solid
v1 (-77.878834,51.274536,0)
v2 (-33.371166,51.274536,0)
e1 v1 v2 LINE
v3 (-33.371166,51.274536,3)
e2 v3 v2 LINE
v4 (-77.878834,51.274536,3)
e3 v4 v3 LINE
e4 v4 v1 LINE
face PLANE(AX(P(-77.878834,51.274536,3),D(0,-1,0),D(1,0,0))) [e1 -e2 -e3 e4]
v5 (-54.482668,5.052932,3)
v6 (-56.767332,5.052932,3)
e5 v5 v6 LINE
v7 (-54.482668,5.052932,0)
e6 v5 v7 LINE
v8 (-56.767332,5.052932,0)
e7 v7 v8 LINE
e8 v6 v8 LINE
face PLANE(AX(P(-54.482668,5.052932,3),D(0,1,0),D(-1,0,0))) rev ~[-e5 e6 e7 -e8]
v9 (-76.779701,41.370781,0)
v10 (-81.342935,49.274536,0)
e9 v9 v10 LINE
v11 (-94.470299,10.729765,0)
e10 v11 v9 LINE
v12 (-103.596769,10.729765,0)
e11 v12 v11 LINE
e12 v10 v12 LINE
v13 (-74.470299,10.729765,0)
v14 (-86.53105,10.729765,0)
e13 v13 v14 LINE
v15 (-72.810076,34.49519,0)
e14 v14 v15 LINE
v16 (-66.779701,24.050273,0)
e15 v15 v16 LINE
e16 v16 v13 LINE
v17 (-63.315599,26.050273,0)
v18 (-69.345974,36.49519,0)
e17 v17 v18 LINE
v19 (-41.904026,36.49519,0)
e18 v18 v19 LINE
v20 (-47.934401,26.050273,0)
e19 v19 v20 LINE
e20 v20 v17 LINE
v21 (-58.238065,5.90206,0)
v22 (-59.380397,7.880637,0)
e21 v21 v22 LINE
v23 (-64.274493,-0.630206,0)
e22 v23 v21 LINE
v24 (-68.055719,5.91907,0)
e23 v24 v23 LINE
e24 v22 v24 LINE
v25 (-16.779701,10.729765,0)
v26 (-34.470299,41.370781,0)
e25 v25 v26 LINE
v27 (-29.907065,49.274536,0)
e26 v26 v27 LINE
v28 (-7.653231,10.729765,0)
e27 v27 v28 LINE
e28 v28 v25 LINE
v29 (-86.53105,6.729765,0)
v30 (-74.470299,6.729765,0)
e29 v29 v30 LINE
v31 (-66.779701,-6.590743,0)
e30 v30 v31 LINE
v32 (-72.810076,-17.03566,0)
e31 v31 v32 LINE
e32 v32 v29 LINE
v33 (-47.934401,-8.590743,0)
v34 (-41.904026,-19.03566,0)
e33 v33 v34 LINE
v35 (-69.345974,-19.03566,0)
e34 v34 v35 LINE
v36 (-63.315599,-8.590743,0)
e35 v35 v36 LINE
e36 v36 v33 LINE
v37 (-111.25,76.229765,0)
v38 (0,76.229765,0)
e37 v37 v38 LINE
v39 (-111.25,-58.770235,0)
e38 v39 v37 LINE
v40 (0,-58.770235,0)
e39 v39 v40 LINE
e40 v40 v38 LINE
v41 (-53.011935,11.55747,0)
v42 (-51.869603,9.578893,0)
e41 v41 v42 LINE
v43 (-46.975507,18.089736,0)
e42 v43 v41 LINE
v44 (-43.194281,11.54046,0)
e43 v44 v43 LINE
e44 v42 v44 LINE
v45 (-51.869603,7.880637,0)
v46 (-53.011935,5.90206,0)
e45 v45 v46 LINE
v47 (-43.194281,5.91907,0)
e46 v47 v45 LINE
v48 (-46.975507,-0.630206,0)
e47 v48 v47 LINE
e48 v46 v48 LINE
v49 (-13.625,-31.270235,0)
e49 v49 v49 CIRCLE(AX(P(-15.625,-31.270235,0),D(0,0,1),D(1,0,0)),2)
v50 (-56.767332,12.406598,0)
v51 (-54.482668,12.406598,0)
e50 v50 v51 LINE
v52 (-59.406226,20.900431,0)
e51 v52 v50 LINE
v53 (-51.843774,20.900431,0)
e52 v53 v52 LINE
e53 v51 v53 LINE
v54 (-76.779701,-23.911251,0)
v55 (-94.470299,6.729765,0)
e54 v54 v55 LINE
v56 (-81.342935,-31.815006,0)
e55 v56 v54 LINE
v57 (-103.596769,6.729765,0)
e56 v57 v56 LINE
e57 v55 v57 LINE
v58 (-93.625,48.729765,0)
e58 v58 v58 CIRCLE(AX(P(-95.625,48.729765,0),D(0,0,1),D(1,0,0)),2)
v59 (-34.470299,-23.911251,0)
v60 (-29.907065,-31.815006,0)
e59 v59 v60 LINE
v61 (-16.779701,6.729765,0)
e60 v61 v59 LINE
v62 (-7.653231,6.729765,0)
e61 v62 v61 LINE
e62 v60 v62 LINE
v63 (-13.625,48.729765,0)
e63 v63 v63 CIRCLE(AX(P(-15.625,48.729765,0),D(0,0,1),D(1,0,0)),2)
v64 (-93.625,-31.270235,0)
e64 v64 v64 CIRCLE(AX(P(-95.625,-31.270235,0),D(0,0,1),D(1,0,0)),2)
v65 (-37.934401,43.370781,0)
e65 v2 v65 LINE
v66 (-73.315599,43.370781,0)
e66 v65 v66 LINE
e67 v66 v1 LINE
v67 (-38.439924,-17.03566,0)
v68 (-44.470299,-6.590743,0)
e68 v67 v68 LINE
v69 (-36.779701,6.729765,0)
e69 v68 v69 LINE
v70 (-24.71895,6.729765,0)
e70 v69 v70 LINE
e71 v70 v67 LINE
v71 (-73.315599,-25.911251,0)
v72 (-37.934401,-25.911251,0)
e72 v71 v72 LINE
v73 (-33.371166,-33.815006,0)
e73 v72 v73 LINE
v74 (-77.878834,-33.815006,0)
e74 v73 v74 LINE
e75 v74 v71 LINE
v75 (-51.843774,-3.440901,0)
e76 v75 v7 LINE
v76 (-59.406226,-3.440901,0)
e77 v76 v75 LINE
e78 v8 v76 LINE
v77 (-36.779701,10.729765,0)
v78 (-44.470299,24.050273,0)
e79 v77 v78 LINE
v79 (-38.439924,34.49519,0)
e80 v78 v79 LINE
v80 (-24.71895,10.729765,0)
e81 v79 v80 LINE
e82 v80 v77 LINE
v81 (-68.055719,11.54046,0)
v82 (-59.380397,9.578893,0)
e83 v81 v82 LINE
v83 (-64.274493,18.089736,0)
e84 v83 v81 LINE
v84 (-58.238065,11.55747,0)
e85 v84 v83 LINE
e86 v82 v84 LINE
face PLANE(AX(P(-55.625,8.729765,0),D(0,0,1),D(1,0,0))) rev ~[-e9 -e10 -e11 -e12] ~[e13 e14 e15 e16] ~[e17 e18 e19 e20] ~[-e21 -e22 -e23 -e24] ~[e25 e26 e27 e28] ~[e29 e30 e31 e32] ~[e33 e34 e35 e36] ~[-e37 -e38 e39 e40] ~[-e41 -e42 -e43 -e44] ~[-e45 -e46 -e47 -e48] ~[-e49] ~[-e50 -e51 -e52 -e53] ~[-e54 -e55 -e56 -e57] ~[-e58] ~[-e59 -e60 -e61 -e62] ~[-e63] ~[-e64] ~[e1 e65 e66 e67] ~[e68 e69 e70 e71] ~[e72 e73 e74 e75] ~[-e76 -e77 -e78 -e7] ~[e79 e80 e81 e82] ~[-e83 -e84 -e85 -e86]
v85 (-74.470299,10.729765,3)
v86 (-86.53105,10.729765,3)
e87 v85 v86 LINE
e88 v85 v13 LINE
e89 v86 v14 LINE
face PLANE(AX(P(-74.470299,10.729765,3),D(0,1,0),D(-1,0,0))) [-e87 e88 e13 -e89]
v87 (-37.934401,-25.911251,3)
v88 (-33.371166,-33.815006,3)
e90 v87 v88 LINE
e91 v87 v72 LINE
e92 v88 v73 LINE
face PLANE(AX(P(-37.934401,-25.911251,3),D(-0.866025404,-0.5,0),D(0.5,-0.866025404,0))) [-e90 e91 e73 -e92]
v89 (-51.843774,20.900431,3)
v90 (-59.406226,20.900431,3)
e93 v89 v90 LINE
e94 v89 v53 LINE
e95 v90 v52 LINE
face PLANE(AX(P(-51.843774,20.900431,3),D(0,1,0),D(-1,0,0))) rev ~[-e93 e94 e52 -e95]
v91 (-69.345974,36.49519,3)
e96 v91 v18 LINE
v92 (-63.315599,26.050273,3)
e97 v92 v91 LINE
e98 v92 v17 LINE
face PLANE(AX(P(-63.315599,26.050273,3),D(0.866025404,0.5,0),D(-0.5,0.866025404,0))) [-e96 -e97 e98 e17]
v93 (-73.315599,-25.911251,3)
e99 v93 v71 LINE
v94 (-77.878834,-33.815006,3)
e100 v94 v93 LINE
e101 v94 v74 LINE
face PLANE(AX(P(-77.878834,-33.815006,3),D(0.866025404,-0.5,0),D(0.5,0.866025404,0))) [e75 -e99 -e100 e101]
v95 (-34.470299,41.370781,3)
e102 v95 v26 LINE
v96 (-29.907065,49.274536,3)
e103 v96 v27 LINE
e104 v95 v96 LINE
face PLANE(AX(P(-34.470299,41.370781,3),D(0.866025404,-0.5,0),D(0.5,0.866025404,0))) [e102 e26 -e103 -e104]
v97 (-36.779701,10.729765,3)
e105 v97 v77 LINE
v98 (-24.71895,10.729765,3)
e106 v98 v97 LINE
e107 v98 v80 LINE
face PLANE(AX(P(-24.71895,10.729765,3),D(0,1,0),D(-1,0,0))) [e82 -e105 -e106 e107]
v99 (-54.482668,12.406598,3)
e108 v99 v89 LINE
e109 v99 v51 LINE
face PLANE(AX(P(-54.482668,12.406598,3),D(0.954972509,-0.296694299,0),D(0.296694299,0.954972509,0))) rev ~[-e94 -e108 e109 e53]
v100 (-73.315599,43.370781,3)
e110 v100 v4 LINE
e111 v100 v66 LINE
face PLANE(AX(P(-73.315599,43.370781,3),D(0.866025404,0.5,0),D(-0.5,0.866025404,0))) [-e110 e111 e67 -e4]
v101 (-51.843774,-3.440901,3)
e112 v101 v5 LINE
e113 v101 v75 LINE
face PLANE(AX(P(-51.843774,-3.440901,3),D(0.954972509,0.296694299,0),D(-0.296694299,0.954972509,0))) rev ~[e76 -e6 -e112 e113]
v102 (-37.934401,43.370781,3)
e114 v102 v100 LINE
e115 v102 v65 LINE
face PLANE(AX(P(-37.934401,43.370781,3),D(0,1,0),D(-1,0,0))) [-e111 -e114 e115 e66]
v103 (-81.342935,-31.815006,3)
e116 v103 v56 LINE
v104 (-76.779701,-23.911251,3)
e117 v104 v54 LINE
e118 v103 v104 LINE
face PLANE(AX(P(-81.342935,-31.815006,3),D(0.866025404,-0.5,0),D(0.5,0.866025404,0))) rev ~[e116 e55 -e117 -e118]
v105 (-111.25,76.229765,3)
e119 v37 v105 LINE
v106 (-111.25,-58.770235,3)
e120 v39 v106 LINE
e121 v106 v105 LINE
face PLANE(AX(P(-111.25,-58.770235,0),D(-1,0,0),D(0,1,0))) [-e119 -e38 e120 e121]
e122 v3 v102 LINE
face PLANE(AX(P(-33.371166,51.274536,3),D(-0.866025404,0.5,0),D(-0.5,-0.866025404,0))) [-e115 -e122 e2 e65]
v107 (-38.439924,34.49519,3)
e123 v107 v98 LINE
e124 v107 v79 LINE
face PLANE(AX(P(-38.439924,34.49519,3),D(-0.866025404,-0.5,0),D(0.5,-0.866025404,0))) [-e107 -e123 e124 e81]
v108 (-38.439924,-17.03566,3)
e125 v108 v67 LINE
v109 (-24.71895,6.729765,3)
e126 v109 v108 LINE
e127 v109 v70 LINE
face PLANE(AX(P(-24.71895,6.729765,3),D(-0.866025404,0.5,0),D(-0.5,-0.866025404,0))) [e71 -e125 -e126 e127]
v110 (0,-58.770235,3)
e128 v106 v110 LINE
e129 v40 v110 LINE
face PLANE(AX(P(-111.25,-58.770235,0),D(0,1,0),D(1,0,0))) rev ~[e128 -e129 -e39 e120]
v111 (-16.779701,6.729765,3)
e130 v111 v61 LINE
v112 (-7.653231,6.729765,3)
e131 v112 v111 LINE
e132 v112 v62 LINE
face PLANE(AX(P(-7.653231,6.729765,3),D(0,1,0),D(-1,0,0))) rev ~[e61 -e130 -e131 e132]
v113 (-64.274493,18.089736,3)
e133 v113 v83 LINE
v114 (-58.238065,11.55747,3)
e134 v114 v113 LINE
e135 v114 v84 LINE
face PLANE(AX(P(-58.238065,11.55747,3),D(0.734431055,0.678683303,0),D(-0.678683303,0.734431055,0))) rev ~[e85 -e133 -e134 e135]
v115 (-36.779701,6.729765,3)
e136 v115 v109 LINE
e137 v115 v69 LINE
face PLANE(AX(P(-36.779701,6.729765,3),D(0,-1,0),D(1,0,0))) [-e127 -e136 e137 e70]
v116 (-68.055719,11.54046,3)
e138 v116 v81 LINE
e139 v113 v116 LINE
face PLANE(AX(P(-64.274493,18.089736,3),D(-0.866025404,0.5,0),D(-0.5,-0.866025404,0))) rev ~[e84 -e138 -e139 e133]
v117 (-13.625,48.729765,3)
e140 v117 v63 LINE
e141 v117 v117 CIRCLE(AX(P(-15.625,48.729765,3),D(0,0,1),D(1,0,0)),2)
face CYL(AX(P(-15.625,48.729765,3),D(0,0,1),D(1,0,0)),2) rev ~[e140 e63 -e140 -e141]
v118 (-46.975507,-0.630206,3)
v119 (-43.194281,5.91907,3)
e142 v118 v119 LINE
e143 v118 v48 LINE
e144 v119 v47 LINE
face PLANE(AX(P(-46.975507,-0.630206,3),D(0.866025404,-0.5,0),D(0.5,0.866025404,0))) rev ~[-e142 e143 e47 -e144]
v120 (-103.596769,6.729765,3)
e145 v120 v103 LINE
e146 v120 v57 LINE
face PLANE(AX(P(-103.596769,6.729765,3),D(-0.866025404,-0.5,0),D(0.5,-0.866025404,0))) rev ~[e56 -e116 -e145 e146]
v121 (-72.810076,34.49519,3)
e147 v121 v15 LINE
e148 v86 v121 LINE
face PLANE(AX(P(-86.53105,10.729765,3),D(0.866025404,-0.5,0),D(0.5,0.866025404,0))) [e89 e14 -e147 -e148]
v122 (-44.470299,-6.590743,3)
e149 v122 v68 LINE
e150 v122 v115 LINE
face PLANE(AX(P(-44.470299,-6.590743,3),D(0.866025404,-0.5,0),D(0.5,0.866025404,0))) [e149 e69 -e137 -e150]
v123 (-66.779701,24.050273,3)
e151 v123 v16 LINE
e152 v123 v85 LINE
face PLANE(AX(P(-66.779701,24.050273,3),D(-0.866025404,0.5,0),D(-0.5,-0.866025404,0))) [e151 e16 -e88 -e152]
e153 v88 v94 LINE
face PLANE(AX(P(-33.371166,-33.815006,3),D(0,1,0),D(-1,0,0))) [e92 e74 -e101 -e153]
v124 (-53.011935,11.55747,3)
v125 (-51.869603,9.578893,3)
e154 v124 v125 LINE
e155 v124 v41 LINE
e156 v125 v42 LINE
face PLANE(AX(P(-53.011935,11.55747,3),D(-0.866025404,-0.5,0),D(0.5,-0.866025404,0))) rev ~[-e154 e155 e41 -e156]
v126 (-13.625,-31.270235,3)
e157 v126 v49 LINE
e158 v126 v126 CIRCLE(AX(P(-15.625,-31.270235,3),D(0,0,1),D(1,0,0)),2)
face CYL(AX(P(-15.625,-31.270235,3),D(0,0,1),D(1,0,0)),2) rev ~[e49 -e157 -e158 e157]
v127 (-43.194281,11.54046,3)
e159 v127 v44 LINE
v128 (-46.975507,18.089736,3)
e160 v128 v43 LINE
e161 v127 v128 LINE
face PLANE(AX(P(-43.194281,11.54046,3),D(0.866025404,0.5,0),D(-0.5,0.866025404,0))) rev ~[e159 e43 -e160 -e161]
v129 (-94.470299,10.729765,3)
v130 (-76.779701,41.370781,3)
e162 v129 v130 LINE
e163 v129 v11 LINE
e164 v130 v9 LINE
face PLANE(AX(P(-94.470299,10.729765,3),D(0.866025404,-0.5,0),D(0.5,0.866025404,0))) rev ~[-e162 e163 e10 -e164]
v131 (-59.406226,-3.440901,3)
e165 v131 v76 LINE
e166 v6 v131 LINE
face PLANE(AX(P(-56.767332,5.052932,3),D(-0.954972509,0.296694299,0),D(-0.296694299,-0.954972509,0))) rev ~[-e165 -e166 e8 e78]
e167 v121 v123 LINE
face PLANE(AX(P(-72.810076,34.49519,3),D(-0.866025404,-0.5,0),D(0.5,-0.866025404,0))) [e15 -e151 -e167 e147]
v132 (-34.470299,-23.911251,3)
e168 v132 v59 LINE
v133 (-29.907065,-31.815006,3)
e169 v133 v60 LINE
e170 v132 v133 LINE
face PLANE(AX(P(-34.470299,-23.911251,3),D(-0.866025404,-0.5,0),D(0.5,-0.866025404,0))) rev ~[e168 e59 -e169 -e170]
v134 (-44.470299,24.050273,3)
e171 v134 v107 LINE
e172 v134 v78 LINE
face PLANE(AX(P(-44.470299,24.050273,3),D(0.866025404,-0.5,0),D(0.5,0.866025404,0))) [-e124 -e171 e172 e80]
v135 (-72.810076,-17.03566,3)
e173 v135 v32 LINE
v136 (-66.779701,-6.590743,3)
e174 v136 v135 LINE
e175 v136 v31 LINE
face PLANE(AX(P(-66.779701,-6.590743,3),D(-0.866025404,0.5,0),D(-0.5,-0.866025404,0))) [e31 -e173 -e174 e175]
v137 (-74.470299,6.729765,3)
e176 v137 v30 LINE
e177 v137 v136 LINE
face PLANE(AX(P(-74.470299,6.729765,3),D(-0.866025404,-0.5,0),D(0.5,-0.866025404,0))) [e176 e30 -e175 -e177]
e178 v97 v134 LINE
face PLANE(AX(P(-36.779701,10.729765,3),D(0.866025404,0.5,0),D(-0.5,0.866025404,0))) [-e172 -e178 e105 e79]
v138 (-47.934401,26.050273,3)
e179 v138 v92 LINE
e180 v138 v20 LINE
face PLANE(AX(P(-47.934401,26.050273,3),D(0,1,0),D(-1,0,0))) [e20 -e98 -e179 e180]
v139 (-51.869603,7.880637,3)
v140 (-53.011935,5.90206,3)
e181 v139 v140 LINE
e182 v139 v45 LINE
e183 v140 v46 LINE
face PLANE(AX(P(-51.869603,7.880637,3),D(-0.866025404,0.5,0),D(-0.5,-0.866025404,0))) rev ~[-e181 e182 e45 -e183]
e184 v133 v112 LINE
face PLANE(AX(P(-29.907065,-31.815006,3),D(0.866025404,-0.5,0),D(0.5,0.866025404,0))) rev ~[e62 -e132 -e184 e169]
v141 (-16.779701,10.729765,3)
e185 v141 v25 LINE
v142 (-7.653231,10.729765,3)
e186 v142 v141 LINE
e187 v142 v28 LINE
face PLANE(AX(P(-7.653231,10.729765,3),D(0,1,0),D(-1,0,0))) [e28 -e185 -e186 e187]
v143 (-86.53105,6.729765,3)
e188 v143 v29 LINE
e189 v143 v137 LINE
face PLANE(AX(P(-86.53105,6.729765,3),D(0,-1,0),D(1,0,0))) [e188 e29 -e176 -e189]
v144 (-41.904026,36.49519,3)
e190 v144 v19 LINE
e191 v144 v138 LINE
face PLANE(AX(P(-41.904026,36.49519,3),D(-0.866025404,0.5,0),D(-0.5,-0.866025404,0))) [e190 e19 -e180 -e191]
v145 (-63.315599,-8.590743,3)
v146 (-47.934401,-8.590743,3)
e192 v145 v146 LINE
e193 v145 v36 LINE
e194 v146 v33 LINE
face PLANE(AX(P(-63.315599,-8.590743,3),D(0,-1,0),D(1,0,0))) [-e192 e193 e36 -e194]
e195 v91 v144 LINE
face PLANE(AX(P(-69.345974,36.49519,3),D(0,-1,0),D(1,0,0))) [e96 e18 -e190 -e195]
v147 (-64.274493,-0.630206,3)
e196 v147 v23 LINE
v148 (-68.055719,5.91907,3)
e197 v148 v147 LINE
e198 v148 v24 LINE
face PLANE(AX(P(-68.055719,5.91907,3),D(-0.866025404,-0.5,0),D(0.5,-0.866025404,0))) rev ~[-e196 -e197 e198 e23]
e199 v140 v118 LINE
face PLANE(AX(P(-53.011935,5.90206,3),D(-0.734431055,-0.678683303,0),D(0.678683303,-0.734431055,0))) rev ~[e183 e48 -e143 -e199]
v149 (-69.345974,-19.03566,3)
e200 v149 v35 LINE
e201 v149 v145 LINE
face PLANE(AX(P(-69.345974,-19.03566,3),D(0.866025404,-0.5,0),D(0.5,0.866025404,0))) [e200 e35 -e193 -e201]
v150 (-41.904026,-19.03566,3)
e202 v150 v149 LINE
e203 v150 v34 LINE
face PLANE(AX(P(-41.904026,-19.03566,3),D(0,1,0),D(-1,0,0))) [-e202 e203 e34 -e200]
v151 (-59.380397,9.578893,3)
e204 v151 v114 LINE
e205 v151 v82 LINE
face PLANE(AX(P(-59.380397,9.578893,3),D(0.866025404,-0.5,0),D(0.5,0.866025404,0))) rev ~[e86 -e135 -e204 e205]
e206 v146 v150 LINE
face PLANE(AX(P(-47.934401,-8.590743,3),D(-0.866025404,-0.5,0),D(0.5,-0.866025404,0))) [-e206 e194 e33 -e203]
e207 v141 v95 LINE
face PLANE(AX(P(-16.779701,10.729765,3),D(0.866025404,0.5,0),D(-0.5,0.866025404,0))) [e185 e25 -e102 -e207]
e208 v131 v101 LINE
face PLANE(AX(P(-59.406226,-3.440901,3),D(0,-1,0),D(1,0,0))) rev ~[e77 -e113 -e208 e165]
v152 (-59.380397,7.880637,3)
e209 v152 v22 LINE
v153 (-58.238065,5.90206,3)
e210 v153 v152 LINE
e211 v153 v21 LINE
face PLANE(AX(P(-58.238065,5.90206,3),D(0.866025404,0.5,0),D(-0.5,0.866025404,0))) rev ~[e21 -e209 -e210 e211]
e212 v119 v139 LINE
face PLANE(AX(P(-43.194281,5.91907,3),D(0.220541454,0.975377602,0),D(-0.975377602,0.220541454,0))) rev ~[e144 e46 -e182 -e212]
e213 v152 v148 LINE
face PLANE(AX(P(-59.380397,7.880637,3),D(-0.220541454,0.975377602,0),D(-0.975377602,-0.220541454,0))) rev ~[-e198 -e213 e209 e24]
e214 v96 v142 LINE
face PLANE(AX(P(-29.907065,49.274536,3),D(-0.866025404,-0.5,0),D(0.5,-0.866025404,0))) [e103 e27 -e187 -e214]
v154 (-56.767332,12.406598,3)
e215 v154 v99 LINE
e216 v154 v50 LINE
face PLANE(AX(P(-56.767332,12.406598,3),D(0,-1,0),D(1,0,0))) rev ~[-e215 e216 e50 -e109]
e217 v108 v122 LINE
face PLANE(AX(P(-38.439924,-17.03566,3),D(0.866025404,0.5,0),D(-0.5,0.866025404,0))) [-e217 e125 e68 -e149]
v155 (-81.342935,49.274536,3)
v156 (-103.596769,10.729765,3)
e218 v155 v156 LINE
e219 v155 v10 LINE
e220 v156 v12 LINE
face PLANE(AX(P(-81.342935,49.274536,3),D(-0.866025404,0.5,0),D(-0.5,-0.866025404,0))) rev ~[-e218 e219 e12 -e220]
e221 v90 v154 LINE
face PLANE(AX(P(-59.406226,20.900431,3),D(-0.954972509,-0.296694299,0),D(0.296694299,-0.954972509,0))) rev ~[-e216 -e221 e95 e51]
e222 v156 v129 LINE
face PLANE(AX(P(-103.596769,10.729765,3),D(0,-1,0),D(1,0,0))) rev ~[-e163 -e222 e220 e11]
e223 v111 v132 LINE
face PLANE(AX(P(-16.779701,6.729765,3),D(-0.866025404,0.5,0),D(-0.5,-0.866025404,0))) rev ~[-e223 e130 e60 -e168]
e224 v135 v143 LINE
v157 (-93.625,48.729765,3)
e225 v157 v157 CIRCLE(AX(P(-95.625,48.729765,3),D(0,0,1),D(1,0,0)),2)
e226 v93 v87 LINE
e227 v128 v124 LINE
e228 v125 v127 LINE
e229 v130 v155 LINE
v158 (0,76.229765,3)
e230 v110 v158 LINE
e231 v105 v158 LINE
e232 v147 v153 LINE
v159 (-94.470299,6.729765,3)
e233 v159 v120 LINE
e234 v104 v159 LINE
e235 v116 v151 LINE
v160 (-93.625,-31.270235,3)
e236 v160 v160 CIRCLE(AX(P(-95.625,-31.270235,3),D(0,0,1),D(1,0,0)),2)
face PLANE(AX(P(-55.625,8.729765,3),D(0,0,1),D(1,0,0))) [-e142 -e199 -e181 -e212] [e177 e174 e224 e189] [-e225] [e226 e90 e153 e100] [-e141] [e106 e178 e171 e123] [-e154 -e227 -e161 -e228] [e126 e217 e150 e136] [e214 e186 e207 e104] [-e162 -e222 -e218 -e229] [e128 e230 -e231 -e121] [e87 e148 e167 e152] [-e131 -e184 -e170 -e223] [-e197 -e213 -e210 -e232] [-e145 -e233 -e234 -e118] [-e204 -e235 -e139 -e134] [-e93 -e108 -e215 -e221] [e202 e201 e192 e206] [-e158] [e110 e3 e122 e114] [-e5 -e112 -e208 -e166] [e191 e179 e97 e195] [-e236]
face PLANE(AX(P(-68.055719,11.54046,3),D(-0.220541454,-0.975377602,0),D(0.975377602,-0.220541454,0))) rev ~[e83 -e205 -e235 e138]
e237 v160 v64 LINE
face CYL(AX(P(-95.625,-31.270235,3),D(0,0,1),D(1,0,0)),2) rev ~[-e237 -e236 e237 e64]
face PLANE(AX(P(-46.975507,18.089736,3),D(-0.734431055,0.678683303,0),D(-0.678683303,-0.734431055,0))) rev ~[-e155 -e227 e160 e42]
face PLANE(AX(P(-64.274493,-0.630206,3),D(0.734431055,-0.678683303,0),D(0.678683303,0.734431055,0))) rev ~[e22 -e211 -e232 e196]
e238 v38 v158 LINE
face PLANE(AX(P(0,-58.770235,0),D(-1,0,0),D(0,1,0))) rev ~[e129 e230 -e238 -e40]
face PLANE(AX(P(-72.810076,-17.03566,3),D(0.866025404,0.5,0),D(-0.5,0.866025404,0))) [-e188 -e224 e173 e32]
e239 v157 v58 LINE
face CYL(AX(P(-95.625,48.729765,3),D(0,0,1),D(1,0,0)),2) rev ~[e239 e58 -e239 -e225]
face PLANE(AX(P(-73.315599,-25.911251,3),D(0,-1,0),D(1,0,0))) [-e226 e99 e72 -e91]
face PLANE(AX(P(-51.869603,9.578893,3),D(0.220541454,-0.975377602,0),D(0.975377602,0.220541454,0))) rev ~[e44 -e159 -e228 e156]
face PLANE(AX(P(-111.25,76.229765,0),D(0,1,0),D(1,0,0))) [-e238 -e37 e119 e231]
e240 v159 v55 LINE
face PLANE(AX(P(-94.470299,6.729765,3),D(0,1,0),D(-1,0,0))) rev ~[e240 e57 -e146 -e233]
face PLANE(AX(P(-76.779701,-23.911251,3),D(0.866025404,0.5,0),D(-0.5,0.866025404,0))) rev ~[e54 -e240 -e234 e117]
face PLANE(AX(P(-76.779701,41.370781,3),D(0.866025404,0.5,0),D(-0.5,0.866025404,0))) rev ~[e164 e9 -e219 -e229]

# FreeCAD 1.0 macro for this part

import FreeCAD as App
import Part
import Sketcher
Q = App.Units.Quantity

doc = App.newDocument("Part")
body = doc.addObject("PartDesign::Body", "Body")

# Sketch on XY plane
sketch1 = doc.addObject("Sketcher::SketchObject", "Sketch")
body.addObject(sketch1)
sketch1.AttachmentSupport = (doc.XY_Plane, [""])
sketch1.MapMode = "FlatFace"
sketch1.addGeometry(Part.LineSegment(App.Vector(-111, 76, 0), App.Vector(-111, -59, 0)), False)
sketch1.addGeometry(Part.LineSegment(App.Vector(-111, -59, 0), App.Vector(0, -59, 0)), False)
sketch1.addGeometry(Part.LineSegment(App.Vector(0, -59, 0), App.Vector(0, 76, 0)), False)
sketch1.addGeometry(Part.LineSegment(App.Vector(0, 76, 0), App.Vector(-111, 76, 0)), False)
sketch1.addConstraint(Sketcher.Constraint("Coincident", 0, 2, 1, 1))
sketch1.addConstraint(Sketcher.Constraint("Coincident", 1, 2, 2, 1))
sketch1.addConstraint(Sketcher.Constraint("Coincident", 2, 2, 3, 1))
sketch1.addConstraint(Sketcher.Constraint("Coincident", 3, 2, 0, 1))
sketch1.addConstraint(Sketcher.Constraint("Vertical", 0))
sketch1.addConstraint(Sketcher.Constraint("Horizontal", 1))
sketch1.addConstraint(Sketcher.Constraint("Vertical", 2))
sketch1.addConstraint(Sketcher.Constraint("Horizontal", 3))
sketch1.addConstraint(Sketcher.Constraint("PointOnObject", 1, 2, -2))
sketch1.addConstraint(Sketcher.Constraint("DistanceY", 0, 2, 0, 1, Q("135 mm")))
sketch1.addConstraint(Sketcher.Constraint("DistanceX", 1, 1, 1, 2, Q("111.25 mm")))
sketch1.addConstraint(Sketcher.Constraint("DistanceY", 0, 2, -1, 1, Q("58.770235 mm")))
pad1 = doc.addObject("PartDesign::Pad", "Pad")
body.addObject(pad1)
pad1.Profile = sketch1
pad1.Length = 3

# Sketch on XY plane
sketch2 = doc.addObject("Sketcher::SketchObject", "Sketch001")
body.addObject(sketch2)
sketch2.AttachmentSupport = (doc.XY_Plane, [""])
sketch2.MapMode = "FlatFace"
sketch2.AttachmentOffset = App.Placement(App.Vector(0, 0, 3), App.Rotation())
sketch2.addGeometry(Part.LineSegment(App.Vector(-81.3, 49.3, 0), App.Vector(-103.6, 10.7, 0)), False)
sketch2.addGeometry(Part.LineSegment(App.Vector(-103.6, 10.7, 0), App.Vector(-94.5, 10.7, 0)), False)
sketch2.addGeometry(Part.LineSegment(App.Vector(-94.5, 10.7, 0), App.Vector(-76.8, 41.4, 0)), False)
sketch2.addGeometry(Part.LineSegment(App.Vector(-76.8, 41.4, 0), App.Vector(-81.3, 49.3, 0)), False)
sketch2.addGeometry(Part.LineSegment(App.Vector(-73.3, 43.4, 0), App.Vector(-37.9, 43.4, 0)), False)
sketch2.addGeometry(Part.LineSegment(App.Vector(-37.9, 43.4, 0), App.Vector(-33.4, 51.3, 0)), False)
sketch2.addGeometry(Part.LineSegment(App.Vector(-33.4, 51.3, 0), App.Vector(-77.9, 51.3, 0)), False)
sketch2.addGeometry(Part.LineSegment(App.Vector(-77.9, 51.3, 0), App.Vector(-73.3, 43.4, 0)), False)
sketch2.addGeometry(Part.LineSegment(App.Vector(-34.5, 41.4, 0), App.Vector(-16.8, 10.7, 0)), False)
sketch2.addGeometry(Part.LineSegment(App.Vector(-16.8, 10.7, 0), App.Vector(-7.7, 10.7, 0)), False)
sketch2.addGeometry(Part.LineSegment(App.Vector(-7.7, 10.7, 0), App.Vector(-29.9, 49.3, 0)), False)
sketch2.addGeometry(Part.LineSegment(App.Vector(-29.9, 49.3, 0), App.Vector(-34.5, 41.4, 0)), False)
sketch2.addGeometry(Part.LineSegment(App.Vector(-29.9, -31.8, 0), App.Vector(-7.7, 6.7, 0)), False)
sketch2.addGeometry(Part.LineSegment(App.Vector(-7.7, 6.7, 0), App.Vector(-16.8, 6.7, 0)), False)
sketch2.addGeometry(Part.LineSegment(App.Vector(-16.8, 6.7, 0), App.Vector(-34.5, -23.9, 0)), False)
sketch2.addGeometry(Part.LineSegment(App.Vector(-34.5, -23.9, 0), App.Vector(-29.9, -31.8, 0)), False)
sketch2.addGeometry(Part.LineSegment(App.Vector(-73.3, -25.9, 0), App.Vector(-77.9, -33.8, 0)), False)
sketch2.addGeometry(Part.LineSegment(App.Vector(-77.9, -33.8, 0), App.Vector(-33.4, -33.8, 0)), False)
sketch2.addGeometry(Part.LineSegment(App.Vector(-33.4, -33.8, 0), App.Vector(-37.9, -25.9, 0)), False)
sketch2.addGeometry(Part.LineSegment(App.Vector(-37.9, -25.9, 0), App.Vector(-73.3, -25.9, 0)), False)
sketch2.addGeometry(Part.LineSegment(App.Vector(-103.6, 6.7, 0), App.Vector(-81.3, -31.8, 0)), False)
sketch2.addGeometry(Part.LineSegment(App.Vector(-81.3, -31.8, 0), App.Vector(-76.8, -23.9, 0)), False)
sketch2.addGeometry(Part.LineSegment(App.Vector(-76.8, -23.9, 0), App.Vector(-94.5, 6.7, 0)), False)
sketch2.addGeometry(Part.LineSegment(App.Vector(-94.5, 6.7, 0), App.Vector(-103.6, 6.7, 0)), False)
sketch2.addGeometry(Part.LineSegment(App.Vector(-74.5, 10.7, 0), App.Vector(-66.8, 24.1, 0)), False)
sketch2.addGeometry(Part.LineSegment(App.Vector(-66.8, 24.1, 0), App.Vector(-72.8, 34.5, 0)), False)
sketch2.addGeometry(Part.LineSegment(App.Vector(-72.8, 34.5, 0), App.Vector(-86.5, 10.7, 0)), False)
sketch2.addGeometry(Part.LineSegment(App.Vector(-86.5, 10.7, 0), App.Vector(-74.5, 10.7, 0)), False)
sketch2.addGeometry(Part.LineSegment(App.Vector(-66.8, -6.6, 0), App.Vector(-74.5, 6.7, 0)), False)
sketch2.addGeometry(Part.LineSegment(App.Vector(-74.5, 6.7, 0), App.Vector(-86.5, 6.7, 0)), False)
sketch2.addGeometry(Part.LineSegment(App.Vector(-86.5, 6.7, 0), App.Vector(-72.8, -17, 0)), False)
sketch2.addGeometry(Part.LineSegment(App.Vector(-72.8, -17, 0), App.Vector(-66.8, -6.6, 0)), False)
sketch2.addGeometry(Part.LineSegment(App.Vector(-41.9, -19, 0), App.Vector(-47.9, -8.6, 0)), False)
sketch2.addGeometry(Part.LineSegment(App.Vector(-47.9, -8.6, 0), App.Vector(-63.3, -8.6, 0)), False)
sketch2.addGeometry(Part.LineSegment(App.Vector(-63.3, -8.6, 0), App.Vector(-69.3, -19, 0)), False)
sketch2.addGeometry(Part.LineSegment(App.Vector(-69.3, -19, 0), App.Vector(-41.9, -19, 0)), False)
sketch2.addGeometry(Part.LineSegment(App.Vector(-44.5, -6.6, 0), App.Vector(-38.4, -17, 0)), False)
sketch2.addGeometry(Part.LineSegment(App.Vector(-38.4, -17, 0), App.Vector(-24.7, 6.7, 0)), False)
sketch2.addGeometry(Part.LineSegment(App.Vector(-24.7, 6.7, 0), App.Vector(-36.8, 6.7, 0)), False)
sketch2.addGeometry(Part.LineSegment(App.Vector(-36.8, 6.7, 0), App.Vector(-44.5, -6.6, 0)), False)
sketch2.addGeometry(Part.LineSegment(App.Vector(-44.5, 24.1, 0), App.Vector(-36.8, 10.7, 0)), False)
sketch2.addGeometry(Part.LineSegment(App.Vector(-36.8, 10.7, 0), App.Vector(-24.7, 10.7, 0)), False)
sketch2.addGeometry(Part.LineSegment(App.Vector(-24.7, 10.7, 0), App.Vector(-38.4, 34.5, 0)), False)
sketch2.addGeometry(Part.LineSegment(App.Vector(-38.4, 34.5, 0), App.Vector(-44.5, 24.1, 0)), False)
sketch2.addGeometry(Part.LineSegment(App.Vector(-63.3, 26.1, 0), App.Vector(-47.9, 26.1, 0)), False)
sketch2.addGeometry(Part.LineSegment(App.Vector(-47.9, 26.1, 0), App.Vector(-41.9, 36.5, 0)), False)
sketch2.addGeometry(Part.LineSegment(App.Vector(-41.9, 36.5, 0), App.Vector(-69.3, 36.5, 0)), False)
sketch2.addGeometry(Part.LineSegment(App.Vector(-69.3, 36.5, 0), App.Vector(-63.3, 26.1, 0)), False)
sketch2.addGeometry(Part.LineSegment(App.Vector(-54.5, 12.4, 0), App.Vector(-51.8, 20.9, 0)), False)
sketch2.addGeometry(Part.LineSegment(App.Vector(-51.8, 20.9, 0), App.Vector(-59.4, 20.9, 0)), False)
sketch2.addGeometry(Part.LineSegment(App.Vector(-59.4, 20.9, 0), App.Vector(-56.8, 12.4, 0)), False)
sketch2.addGeometry(Part.LineSegment(App.Vector(-56.8, 12.4, 0), App.Vector(-54.5, 12.4, 0)), False)
sketch2.addGeometry(Part.LineSegment(App.Vector(-58.2, 11.6, 0), App.Vector(-64.3, 18.1, 0)), False)
sketch2.addGeometry(Part.LineSegment(App.Vector(-64.3, 18.1, 0), App.Vector(-68.1, 11.5, 0)), False)
sketch2.addGeometry(Part.LineSegment(App.Vector(-68.1, 11.5, 0), App.Vector(-59.4, 9.6, 0)), False)
sketch2.addGeometry(Part.LineSegment(App.Vector(-59.4, 9.6, 0), App.Vector(-58.2, 11.6, 0)), False)
sketch2.addGeometry(Part.LineSegment(App.Vector(-59.4, 7.9, 0), App.Vector(-68.1, 5.9, 0)), False)
sketch2.addGeometry(Part.LineSegment(App.Vector(-68.1, 5.9, 0), App.Vector(-64.3, -0.6, 0)), False)
sketch2.addGeometry(Part.LineSegment(App.Vector(-64.3, -0.6, 0), App.Vector(-58.2, 5.9, 0)), False)
sketch2.addGeometry(Part.LineSegment(App.Vector(-58.2, 5.9, 0), App.Vector(-59.4, 7.9, 0)), False)
sketch2.addGeometry(Part.LineSegment(App.Vector(-56.8, 5.1, 0), App.Vector(-59.4, -3.4, 0)), False)
sketch2.addGeometry(Part.LineSegment(App.Vector(-59.4, -3.4, 0), App.Vector(-51.8, -3.4, 0)), False)
sketch2.addGeometry(Part.LineSegment(App.Vector(-51.8, -3.4, 0), App.Vector(-54.5, 5.1, 0)), False)
sketch2.addGeometry(Part.LineSegment(App.Vector(-54.5, 5.1, 0), App.Vector(-56.8, 5.1, 0)), False)
sketch2.addGeometry(Part.LineSegment(App.Vector(-53, 5.9, 0), App.Vector(-47, -0.6, 0)), False)
sketch2.addGeometry(Part.LineSegment(App.Vector(-47, -0.6, 0), App.Vector(-43.2, 5.9, 0)), False)
sketch2.addGeometry(Part.LineSegment(App.Vector(-43.2, 5.9, 0), App.Vector(-51.9, 7.9, 0)), False)
sketch2.addGeometry(Part.LineSegment(App.Vector(-51.9, 7.9, 0), App.Vector(-53, 5.9, 0)), False)
sketch2.addGeometry(Part.LineSegment(App.Vector(-51.9, 9.6, 0), App.Vector(-43.2, 11.5, 0)), False)
sketch2.addGeometry(Part.LineSegment(App.Vector(-43.2, 11.5, 0), App.Vector(-47, 18.1, 0)), False)
sketch2.addGeometry(Part.LineSegment(App.Vector(-47, 18.1, 0), App.Vector(-53, 11.6, 0)), False)
sketch2.addGeometry(Part.LineSegment(App.Vector(-53, 11.6, 0), App.Vector(-51.9, 9.6, 0)), False)
sketch2.addGeometry(Part.Circle(App.Vector(-15.6, -31.3, 0), App.Vector(0, 0, 1), 2), False)
sketch2.addGeometry(Part.Circle(App.Vector(-95.6, -31.3, 0), App.Vector(0, 0, 1), 2), False)
sketch2.addGeometry(Part.Circle(App.Vector(-95.6, 48.7, 0), App.Vector(0, 0, 1), 2), False)
sketch2.addGeometry(Part.Circle(App.Vector(-15.6, 48.7, 0), App.Vector(0, 0, 1), 2), False)
sketch2.addConstraint(Sketcher.Constraint("Coincident", 0, 2, 1, 1))
sketch2.addConstraint(Sketcher.Constraint("Coincident", 1, 2, 2, 1))
sketch2.addConstraint(Sketcher.Constraint("Coincident", 2, 2, 3, 1))
sketch2.addConstraint(Sketcher.Constraint("Coincident", 3, 2, 0, 1))
sketch2.addConstraint(Sketcher.Constraint("Coincident", 4, 2, 5, 1))
sketch2.addConstraint(Sketcher.Constraint("Coincident", 5, 2, 6, 1))
sketch2.addConstraint(Sketcher.Constraint("Coincident", 6, 2, 7, 1))
sketch2.addConstraint(Sketcher.Constraint("Coincident", 7, 2, 4, 1))
sketch2.addConstraint(Sketcher.Constraint("Coincident", 8, 2, 9, 1))
sketch2.addConstraint(Sketcher.Constraint("Coincident", 9, 2, 10, 1))
sketch2.addConstraint(Sketcher.Constraint("Coincident", 10, 2, 11, 1))
sketch2.addConstraint(Sketcher.Constraint("Coincident", 11, 2, 8, 1))
sketch2.addConstraint(Sketcher.Constraint("Coincident", 12, 2, 13, 1))
sketch2.addConstraint(Sketcher.Constraint("Coincident", 13, 2, 14, 1))
sketch2.addConstraint(Sketcher.Constraint("Coincident", 14, 2, 15, 1))
sketch2.addConstraint(Sketcher.Constraint("Coincident", 15, 2, 12, 1))
sketch2.addConstraint(Sketcher.Constraint("Coincident", 16, 2, 17, 1))
sketch2.addConstraint(Sketcher.Constraint("Coincident", 17, 2, 18, 1))
sketch2.addConstraint(Sketcher.Constraint("Coincident", 18, 2, 19, 1))
sketch2.addConstraint(Sketcher.Constraint("Coincident", 19, 2, 16, 1))
sketch2.addConstraint(Sketcher.Constraint("Coincident", 20, 2, 21, 1))
sketch2.addConstraint(Sketcher.Constraint("Coincident", 21, 2, 22, 1))
sketch2.addConstraint(Sketcher.Constraint("Coincident", 22, 2, 23, 1))
sketch2.addConstraint(Sketcher.Constraint("Coincident", 23, 2, 20, 1))
sketch2.addConstraint(Sketcher.Constraint("Coincident", 24, 2, 25, 1))
sketch2.addConstraint(Sketcher.Constraint("Coincident", 25, 2, 26, 1))
sketch2.addConstraint(Sketcher.Constraint("Coincident", 26, 2, 27, 1))
sketch2.addConstraint(Sketcher.Constraint("Coincident", 27, 2, 24, 1))
sketch2.addConstraint(Sketcher.Constraint("Coincident", 28, 2, 29, 1))
sketch2.addConstraint(Sketcher.Constraint("Coincident", 29, 2, 30, 1))
sketch2.addConstraint(Sketcher.Constraint("Coincident", 30, 2, 31, 1))
sketch2.addConstraint(Sketcher.Constraint("Coincident", 31, 2, 28, 1))
sketch2.addConstraint(Sketcher.Constraint("Coincident", 32, 2, 33, 1))
sketch2.addConstraint(Sketcher.Constraint("Coincident", 33, 2, 34, 1))
sketch2.addConstraint(Sketcher.Constraint("Coincident", 34, 2, 35, 1))
sketch2.addConstraint(Sketcher.Constraint("Coincident", 35, 2, 32, 1))
sketch2.addConstraint(Sketcher.Constraint("Coincident", 36, 2, 37, 1))
sketch2.addConstraint(Sketcher.Constraint("Coincident", 37, 2, 38, 1))
sketch2.addConstraint(Sketcher.Constraint("Coincident", 38, 2, 39, 1))
sketch2.addConstraint(Sketcher.Constraint("Coincident", 39, 2, 36, 1))
sketch2.addConstraint(Sketcher.Constraint("Coincident", 40, 2, 41, 1))
sketch2.addConstraint(Sketcher.Constraint("Coincident", 41, 2, 42, 1))
sketch2.addConstraint(Sketcher.Constraint("Coincident", 42, 2, 43, 1))
sketch2.addConstraint(Sketcher.Constraint("Coincident", 43, 2, 40, 1))
sketch2.addConstraint(Sketcher.Constraint("Coincident", 44, 2, 45, 1))
sketch2.addConstraint(Sketcher.Constraint("Coincident", 45, 2, 46, 1))
sketch2.addConstraint(Sketcher.Constraint("Coincident", 46, 2, 47, 1))
sketch2.addConstraint(Sketcher.Constraint("Coincident", 47, 2, 44, 1))
sketch2.addConstraint(Sketcher.Constraint("Coincident", 48, 2, 49, 1))
sketch2.addConstraint(Sketcher.Constraint("Coincident", 49, 2, 50, 1))
sketch2.addConstraint(Sketcher.Constraint("Coincident", 50, 2, 51, 1))
sketch2.addConstraint(Sketcher.Constraint("Coincident", 51, 2, 48, 1))
sketch2.addConstraint(Sketcher.Constraint("Coincident", 52, 2, 53, 1))
sketch2.addConstraint(Sketcher.Constraint("Coincident", 53, 2, 54, 1))
sketch2.addConstraint(Sketcher.Constraint("Coincident", 54, 2, 55, 1))
sketch2.addConstraint(Sketcher.Constraint("Coincident", 55, 2, 52, 1))
sketch2.addConstraint(Sketcher.Constraint("Coincident", 56, 2, 57, 1))
sketch2.addConstraint(Sketcher.Constraint("Coincident", 57, 2, 58, 1))
sketch2.addConstraint(Sketcher.Constraint("Coincident", 58, 2, 59, 1))
sketch2.addConstraint(Sketcher.Constraint("Coincident", 59, 2, 56, 1))
sketch2.addConstraint(Sketcher.Constraint("Coincident", 60, 2, 61, 1))
sketch2.addConstraint(Sketcher.Constraint("Coincident", 61, 2, 62, 1))
sketch2.addConstraint(Sketcher.Constraint("Coincident", 62, 2, 63, 1))
sketch2.addConstraint(Sketcher.Constraint("Coincident", 63, 2, 60, 1))
sketch2.addConstraint(Sketcher.Constraint("Coincident", 64, 2, 65, 1))
sketch2.addConstraint(Sketcher.Constraint("Coincident", 65, 2, 66, 1))
sketch2.addConstraint(Sketcher.Constraint("Coincident", 66, 2, 67, 1))
sketch2.addConstraint(Sketcher.Constraint("Coincident", 67, 2, 64, 1))
sketch2.addConstraint(Sketcher.Constraint("Coincident", 68, 2, 69, 1))
sketch2.addConstraint(Sketcher.Constraint("Coincident", 69, 2, 70, 1))
sketch2.addConstraint(Sketcher.Constraint("Coincident", 70, 2, 71, 1))
sketch2.addConstraint(Sketcher.Constraint("Coincident", 71, 2, 68, 1))
sketch2.addConstraint(Sketcher.Constraint("Horizontal", 1))
sketch2.addConstraint(Sketcher.Constraint("Horizontal", 4))
sketch2.addConstraint(Sketcher.Constraint("Horizontal", 6))
sketch2.addConstraint(Sketcher.Constraint("Horizontal", 9))
sketch2.addConstraint(Sketcher.Constraint("Horizontal", 13))
sketch2.addConstraint(Sketcher.Constraint("Horizontal", 17))
sketch2.addConstraint(Sketcher.Constraint("Horizontal", 19))
sketch2.addConstraint(Sketcher.Constraint("Horizontal", 23))
sketch2.addConstraint(Sketcher.Constraint("Horizontal", 27))
sketch2.addConstraint(Sketcher.Constraint("Horizontal", 29))
sketch2.addConstraint(Sketcher.Constraint("Horizontal", 33))
sketch2.addConstraint(Sketcher.Constraint("Horizontal", 35))
sketch2.addConstraint(Sketcher.Constraint("Horizontal", 38))
sketch2.addConstraint(Sketcher.Constraint("Horizontal", 41))
sketch2.addConstraint(Sketcher.Constraint("Horizontal", 44))
sketch2.addConstraint(Sketcher.Constraint("Horizontal", 46))
sketch2.addConstraint(Sketcher.Constraint("Horizontal", 49))
sketch2.addConstraint(Sketcher.Constraint("Horizontal", 51))
sketch2.addConstraint(Sketcher.Constraint("Horizontal", 61))
sketch2.addConstraint(Sketcher.Constraint("Horizontal", 63))
sketch2.addConstraint(Sketcher.Constraint("Equal", 72, 73))
sketch2.addConstraint(Sketcher.Constraint("Equal", 73, 74))
sketch2.addConstraint(Sketcher.Constraint("Equal", 74, 75))
sketch2.addConstraint(Sketcher.Constraint("Parallel", 0, 2))
sketch2.addConstraint(Sketcher.Constraint("Parallel", 2, 5))
sketch2.addConstraint(Sketcher.Constraint("Parallel", 3, 7))
sketch2.addConstraint(Sketcher.Constraint("Parallel", 7, 8))
sketch2.addConstraint(Sketcher.Constraint("Parallel", 8, 10))
sketch2.addConstraint(Sketcher.Constraint("Parallel", 5, 11))
sketch2.addConstraint(Sketcher.Constraint("Parallel", 11, 12))
sketch2.addConstraint(Sketcher.Constraint("Parallel", 12, 14))
sketch2.addConstraint(Sketcher.Constraint("Parallel", 10, 15))
sketch2.addConstraint(Sketcher.Constraint("Parallel", 14, 16))
sketch2.addConstraint(Sketcher.Constraint("Parallel", 15, 18))
sketch2.addConstraint(Sketcher.Constraint("Parallel", 18, 20))
sketch2.addConstraint(Sketcher.Constraint("Parallel", 16, 21))
sketch2.addConstraint(Sketcher.Constraint("Parallel", 20, 22))
sketch2.addConstraint(Sketcher.Constraint("Parallel", 21, 24))
sketch2.addConstraint(Sketcher.Constraint("Parallel", 22, 25))
sketch2.addConstraint(Sketcher.Constraint("Parallel", 24, 26))
sketch2.addConstraint(Sketcher.Constraint("Parallel", 25, 28))
sketch2.addConstraint(Sketcher.Constraint("Parallel", 28, 30))
sketch2.addConstraint(Sketcher.Constraint("Parallel", 26, 31))
sketch2.addConstraint(Sketcher.Constraint("Parallel", 30, 32))
sketch2.addConstraint(Sketcher.Constraint("Parallel", 31, 34))
sketch2.addConstraint(Sketcher.Constraint("Parallel", 32, 36))
sketch2.addConstraint(Sketcher.Constraint("Parallel", 34, 37))
sketch2.addConstraint(Sketcher.Constraint("Parallel", 37, 39))
sketch2.addConstraint(Sketcher.Constraint("Parallel", 36, 40))
sketch2.addConstraint(Sketcher.Constraint("Parallel", 40, 42))
sketch2.addConstraint(Sketcher.Constraint("Parallel", 39, 43))
sketch2.addConstraint(Sketcher.Constraint("Parallel", 43, 45))
sketch2.addConstraint(Sketcher.Constraint("Parallel", 42, 47))
sketch2.addConstraint(Sketcher.Constraint("Parallel", 45, 53))
sketch2.addConstraint(Sketcher.Constraint("Parallel", 53, 55))
sketch2.addConstraint(Sketcher.Constraint("Parallel", 47, 57))
sketch2.addConstraint(Sketcher.Constraint("Parallel", 57, 59))
sketch2.addConstraint(Sketcher.Constraint("Parallel", 48, 60))
sketch2.addConstraint(Sketcher.Constraint("Parallel", 50, 62))
sketch2.addConstraint(Sketcher.Constraint("Parallel", 52, 64))
sketch2.addConstraint(Sketcher.Constraint("Parallel", 55, 65))
sketch2.addConstraint(Sketcher.Constraint("Parallel", 54, 66))
sketch2.addConstraint(Sketcher.Constraint("Parallel", 65, 67))
sketch2.addConstraint(Sketcher.Constraint("Parallel", 56, 68))
sketch2.addConstraint(Sketcher.Constraint("Parallel", 59, 69))
sketch2.addConstraint(Sketcher.Constraint("Parallel", 58, 70))
sketch2.addConstraint(Sketcher.Constraint("Parallel", 69, 71))
sketch2.addConstraint(Sketcher.Constraint("Horizontal", 72, 3, 73, 3))
sketch2.addConstraint(Sketcher.Constraint("Horizontal", 74, 3, 75, 3))
sketch2.addConstraint(Sketcher.Constraint("Horizontal", 1, 2, 8, 2))
sketch2.addConstraint(Sketcher.Constraint("Horizontal", 3, 2, 10, 2))
sketch2.addConstraint(Sketcher.Constraint("Horizontal", 2, 2, 11, 2))
sketch2.addConstraint(Sketcher.Constraint("Horizontal", 15, 2, 20, 2))
sketch2.addConstraint(Sketcher.Constraint("Horizontal", 14, 2, 21, 2))
sketch2.addConstraint(Sketcher.Constraint("Horizontal", 13, 2, 22, 2))
sketch2.addConstraint(Sketcher.Constraint("Horizontal", 9, 2, 26, 2))
sketch2.addConstraint(Sketcher.Constraint("Horizontal", 23, 2, 28, 2))
sketch2.addConstraint(Sketcher.Constraint("Horizontal", 30, 2, 36, 2))
sketch2.addConstraint(Sketcher.Constraint("Horizontal", 29, 2, 37, 2))
sketch2.addConstraint(Sketcher.Constraint("Horizontal", 31, 2, 39, 2))
sketch2.addConstraint(Sketcher.Constraint("Horizontal", 27, 2, 40, 2))
sketch2.addConstraint(Sketcher.Constraint("Horizontal", 25, 2, 42, 2))
sketch2.addConstraint(Sketcher.Constraint("Horizontal", 24, 2, 43, 2))
sketch2.addConstraint(Sketcher.Constraint("Horizontal", 57, 2, 64, 2))
sketch2.addConstraint(Sketcher.Constraint("Horizontal", 56, 2, 65, 2))
sketch2.addConstraint(Sketcher.Constraint("Horizontal", 59, 2, 66, 2))
sketch2.addConstraint(Sketcher.Constraint("Horizontal", 58, 2, 67, 2))
sketch2.addConstraint(Sketcher.Constraint("Horizontal", 53, 2, 68, 2))
sketch2.addConstraint(Sketcher.Constraint("Horizontal", 52, 2, 69, 2))
sketch2.addConstraint(Sketcher.Constraint("Horizontal", 55, 2, 70, 2))
sketch2.addConstraint(Sketcher.Constraint("Vertical", 73, 3, 74, 3))
sketch2.addConstraint(Sketcher.Constraint("Vertical", 72, 3, 75, 3))
sketch2.addConstraint(Sketcher.Constraint("Vertical", 9, 2, 12, 2))
sketch2.addConstraint(Sketcher.Constraint("Vertical", 8, 2, 13, 2))
sketch2.addConstraint(Sketcher.Constraint("Vertical", 11, 2, 14, 2))
sketch2.addConstraint(Sketcher.Constraint("Vertical", 10, 2, 15, 2))
sketch2.addConstraint(Sketcher.Constraint("Vertical", 6, 2, 16, 2))
sketch2.addConstraint(Sketcher.Constraint("Vertical", 5, 2, 17, 2))
sketch2.addConstraint(Sketcher.Constraint("Vertical", 4, 2, 18, 2))
sketch2.addConstraint(Sketcher.Constraint("Vertical", 3, 2, 20, 2))
sketch2.addConstraint(Sketcher.Constraint("Vertical", 27, 2, 28, 2))
sketch2.addConstraint(Sketcher.Constraint("Vertical", 26, 2, 29, 2))
sketch2.addConstraint(Sketcher.Constraint("Vertical", 25, 2, 30, 2))
sketch2.addConstraint(Sketcher.Constraint("Vertical", 38, 2, 40, 2))
sketch2.addConstraint(Sketcher.Constraint("Vertical", 32, 2, 44, 2))
sketch2.addConstraint(Sketcher.Constraint("Vertical", 35, 2, 45, 2))
sketch2.addConstraint(Sketcher.Constraint("Vertical", 34, 2, 46, 2))
sketch2.addConstraint(Sketcher.Constraint("Vertical", 53, 2, 56, 2))
sketch2.addConstraint(Sketcher.Constraint("Vertical", 52, 2, 57, 2))
sketch2.addConstraint(Sketcher.Constraint("Vertical", 55, 2, 58, 2))
sketch2.addConstraint(Sketcher.Constraint("Vertical", 54, 2, 59, 2))
sketch2.addConstraint(Sketcher.Constraint("Vertical", 49, 2, 60, 2))
sketch2.addConstraint(Sketcher.Constraint("Vertical", 48, 2, 61, 2))
sketch2.addConstraint(Sketcher.Constraint("Vertical", 51, 2, 62, 2))
sketch2.addConstraint(Sketcher.Constraint("Vertical", 50, 2, 63, 2))
sketch2.addConstraint(Sketcher.Constraint("Vertical", 65, 2, 68, 2))
sketch2.addConstraint(Sketcher.Constraint("Equal", 3, 5))
sketch2.addConstraint(Sketcher.Constraint("Equal", 31, 32))
sketch2.addConstraint(Sketcher.Constraint("Equal", 50, 52))
sketch2.addConstraint(Sketcher.Constraint("Equal", 52, 54))
sketch2.addConstraint(Sketcher.Constraint("Diameter", 72, Q("4 mm")))
sketch2.addConstraint(Sketcher.Constraint("Angle", 0, Q("-120 deg")))
sketch2.addConstraint(Sketcher.Constraint("DistanceX", 72, 3, -1, 1, Q("15.625 mm")))
sketch2.addConstraint(Sketcher.Constraint("DistanceX", 73, 3, -1, 1, Q("95.625 mm")))
sketch2.addConstraint(Sketcher.Constraint("DistanceX", 1, 1, 1, 2, Q("9.12647 mm")))
sketch2.addConstraint(Sketcher.Constraint("DistanceX", 27, 1, 27, 2, Q("12.060751 mm")))
sketch2.addConstraint(Sketcher.Constraint("DistanceX", 35, 1, 35, 2, Q("27.441949 mm")))
sketch2.addConstraint(Sketcher.Constraint("DistanceX", 1, 2, -1, 1, Q("94.470299 mm")))
sketch2.addConstraint(Sketcher.Constraint("DistanceX", 2, 2, -1, 1, Q("76.779701 mm")))
sketch2.addConstraint(Sketcher.Constraint("DistanceX", 4, 2, -1, 1, Q("37.934401 mm")))
sketch2.addConstraint(Sketcher.Constraint("DistanceX", 7, 2, -1, 1, Q("73.315599 mm")))
sketch2.addConstraint(Sketcher.Constraint("DistanceX", 8, 2, -1, 1, Q("16.779701 mm")))
sketch2.addConstraint(Sketcher.Constraint("DistanceX", 24, 2, -1, 1, Q("66.779701 mm")))
sketch2.addConstraint(Sketcher.Constraint("DistanceX", 27, 2, -1, 1, Q("74.470299 mm")))
sketch2.addConstraint(Sketcher.Constraint("DistanceX", 32, 2, -1, 1, Q("47.934401 mm")))
sketch2.addConstraint(Sketcher.Constraint("DistanceX", 38, 2, -1, 1, Q("36.779701 mm")))
sketch2.addConstraint(Sketcher.Constraint("DistanceY", -1, 1, 50, 2, Q("12.406598 mm")))
sketch2.addConstraint(Sketcher.Constraint("DistanceY", 60, 2, -1, 1, Q("3.440901 mm")))
sketch2.addConstraint(Sketcher.Constraint("Distance", 48, Q("8.894322 mm")))
sketch2.addConstraint(Sketcher.Constraint("DistanceX", 49, 2, 49, 1, Q("7.562453 mm")))
sketch2.addConstraint(Sketcher.Constraint("DistanceX", 51, 1, 51, 2, Q("2.284664 mm")))
sketch2.addConstraint(Sketcher.Constraint("DistanceY", -1, 1, 2, 2, Q("41.370781 mm")))
sketch2.addConstraint(Sketcher.Constraint("DistanceY", -1, 1, 4, 2, Q("43.370781 mm")))
sketch2.addConstraint(Sketcher.Constraint("DistanceY", 14, 2, -1, 1, Q("23.911251 mm")))
sketch2.addConstraint(Sketcher.Constraint("DistanceY", 18, 2, -1, 1, Q("25.911251 mm")))
sketch2.addConstraint(Sketcher.Constraint("DistanceY", 34, 2, -1, 1, Q("19.03566 mm")))
sketch2.addConstraint(Sketcher.Constraint("DistanceY", -1, 1, 45, 2, Q("36.49519 mm")))
sketch2.addConstraint(Sketcher.Constraint("DistanceX", 50, 2, -1, 1, Q("56.767332 mm")))
sketch2.addConstraint(Sketcher.Constraint("DistanceX", 53, 2, -1, 1, Q("68.055719 mm")))
sketch2.addConstraint(Sketcher.Constraint("DistanceY", -1, 1, 53, 2, Q("11.54046 mm")))
sketch2.addConstraint(Sketcher.Constraint("DistanceY", -1, 1, 55, 2, Q("11.55747 mm")))
sketch2.addConstraint(Sketcher.Constraint("DistanceY", -1, 1, 56, 2, Q("5.91907 mm")))
sketch2.addConstraint(Sketcher.Constraint("DistanceX", 65, 2, -1, 1, Q("43.194281 mm")))
sketch2.addConstraint(Sketcher.Constraint("Distance", 53, Q("7.562453 mm")))
sketch2.addConstraint(Sketcher.Constraint("DistanceY", 72, 3, -1, 1, Q("31.270235 mm")))
sketch2.addConstraint(Sketcher.Constraint("DistanceY", -1, 1, 74, 3, Q("48.729765 mm")))
pocket1 = doc.addObject("PartDesign::Pocket", "Pocket")
body.addObject(pocket1)
pocket1.Profile = sketch2
pocket1.Length = 10

doc.recompute()
